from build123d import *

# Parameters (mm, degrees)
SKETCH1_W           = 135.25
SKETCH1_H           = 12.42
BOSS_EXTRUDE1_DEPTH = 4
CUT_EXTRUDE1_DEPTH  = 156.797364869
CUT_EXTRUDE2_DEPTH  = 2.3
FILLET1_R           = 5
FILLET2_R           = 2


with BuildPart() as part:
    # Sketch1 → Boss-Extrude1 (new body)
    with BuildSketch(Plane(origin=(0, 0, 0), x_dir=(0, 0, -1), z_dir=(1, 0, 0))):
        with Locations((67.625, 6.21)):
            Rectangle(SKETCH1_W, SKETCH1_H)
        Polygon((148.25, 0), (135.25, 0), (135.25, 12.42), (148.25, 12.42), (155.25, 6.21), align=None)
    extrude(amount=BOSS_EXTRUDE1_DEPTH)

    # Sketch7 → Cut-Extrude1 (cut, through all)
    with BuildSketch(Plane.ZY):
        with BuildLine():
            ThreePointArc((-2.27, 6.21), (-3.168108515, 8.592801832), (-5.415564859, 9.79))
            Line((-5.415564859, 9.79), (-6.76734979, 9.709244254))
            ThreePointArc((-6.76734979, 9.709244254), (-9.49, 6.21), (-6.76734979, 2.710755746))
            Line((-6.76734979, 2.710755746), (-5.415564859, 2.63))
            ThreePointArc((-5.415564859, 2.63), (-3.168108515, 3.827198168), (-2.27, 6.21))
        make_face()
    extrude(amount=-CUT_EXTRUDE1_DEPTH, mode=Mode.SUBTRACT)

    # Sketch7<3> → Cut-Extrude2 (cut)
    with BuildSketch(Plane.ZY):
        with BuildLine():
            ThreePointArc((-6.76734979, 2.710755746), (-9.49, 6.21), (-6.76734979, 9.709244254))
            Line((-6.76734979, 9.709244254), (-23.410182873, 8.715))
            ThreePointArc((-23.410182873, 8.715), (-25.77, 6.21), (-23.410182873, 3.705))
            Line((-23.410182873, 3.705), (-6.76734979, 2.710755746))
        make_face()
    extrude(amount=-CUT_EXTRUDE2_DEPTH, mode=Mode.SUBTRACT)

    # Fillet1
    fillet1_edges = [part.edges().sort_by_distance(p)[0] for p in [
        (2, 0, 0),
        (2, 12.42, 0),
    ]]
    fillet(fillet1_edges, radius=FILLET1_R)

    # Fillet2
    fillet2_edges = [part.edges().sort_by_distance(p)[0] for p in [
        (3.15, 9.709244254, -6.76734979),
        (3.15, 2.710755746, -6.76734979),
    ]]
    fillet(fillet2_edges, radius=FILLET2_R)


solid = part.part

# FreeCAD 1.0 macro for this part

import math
import FreeCAD as App
import Part
import Sketcher

V = App.Vector
Q = App.Units.Quantity


def edges_at(feature, points):
    """Names of the edges that pass closest to the given points."""
    edges = feature.Shape.Edges
    near = lambda p: min(range(len(edges)), key=lambda i: edges[i].distToShape(Part.Vertex(*p))[0])
    return sorted({f"Edge{near(p) + 1}" for p in points})

doc = App.newDocument("Part")
body = doc.addObject("PartDesign::Body", "Body")

# Sketch on YZ plane
sketch1 = body.newObject("Sketcher::SketchObject", "Sketch")
sketch1.AttachmentSupport = (doc.getObject("YZ_Plane"), [""])
sketch1.MapMode = "FlatFace"
sketch1.addGeometry([
    Part.LineSegment(V(12, 0, 0), V(0, 0, 0)),  # 0
    Part.LineSegment(V(0, 0, 0), V(0, -148, 0)),  # 1
    Part.LineSegment(V(0, -148, 0), V(6, -155, 0)),  # 2
    Part.LineSegment(V(6, -155, 0), V(12, -148, 0)),  # 3
    Part.LineSegment(V(12, -148, 0), V(12, 0, 0)),  # 4
], False)
sketch1.addConstraint([
    Sketcher.Constraint("Coincident", 0, 2, 1, 1),
    Sketcher.Constraint("Coincident", 1, 2, 2, 1),
    Sketcher.Constraint("Coincident", 2, 2, 3, 1),
    Sketcher.Constraint("Coincident", 3, 2, 4, 1),
    Sketcher.Constraint("Coincident", 4, 2, 0, 1),
    Sketcher.Constraint("Horizontal", 0),
    Sketcher.Constraint("Vertical", 1),
    Sketcher.Constraint("Vertical", 4),
    Sketcher.Constraint("Coincident", 0, 2, -1, 1),
    Sketcher.Constraint("Horizontal", 1, 2, 3, 2),
    Sketcher.Constraint("Equal", 2, 3),
    Sketcher.Constraint("DistanceY", 2, 2, 1, 2, Q("7 mm")),
    Sketcher.Constraint("DistanceX", 0, 2, 0, 1, Q("12.42 mm")),
    Sketcher.Constraint("DistanceY", 1, 2, 1, 1, Q("148.25 mm")),
])
pad1 = body.newObject("PartDesign::Pad", "Pad")
pad1.Profile = sketch1
pad1.Length = 4

# Sketch on YZ plane
sketch2 = body.newObject("Sketcher::SketchObject", "Sketch001")
sketch2.AttachmentSupport = (doc.getObject("YZ_Plane"), [""])
sketch2.MapMode = "FlatFace"
sketch2.addGeometry([
    Part.ArcOfCircle(Part.Circle(V(6.2, -5.9, 0), V(0, 0, 1), 3.6), math.radians(7), math.radians(90)),  # 0
    Part.LineSegment(V(9.8, -5.4, 0), V(9.7, -6.8, 0)),  # 1
    Part.ArcOfCircle(Part.Circle(V(6.2, -5.9, 0), V(0, 0, 1), 3.6), math.radians(-166), math.radians(-14)),  # 2
    Part.LineSegment(V(2.7, -6.8, 0), V(2.6, -5.4, 0)),  # 3
    Part.ArcOfCircle(Part.Circle(V(6.2, -5.9, 0), V(0, 0, 1), 3.6), math.radians(90), math.radians(173)),  # 4
], False)
sketch2.addConstraint([
    Sketcher.Constraint("Coincident", 0, 1, 1, 1),
    Sketcher.Constraint("Coincident", 1, 2, 2, 2),
    Sketcher.Constraint("Coincident", 2, 1, 3, 1),
    Sketcher.Constraint("Coincident", 3, 2, 4, 2),
    Sketcher.Constraint("Tangent", 4, 1, 0, 2),
    Sketcher.Constraint("Coincident", 2, 3, 0, 3),
    Sketcher.Constraint("Equal", 0, 2),
    Sketcher.Constraint("Equal", 2, 4),
    Sketcher.Constraint("Horizontal", 1, 2, 2, 1),
    Sketcher.Constraint("Horizontal", 0, 1, 3, 2),
    Sketcher.Constraint("Vertical", 2, 3, 4, 1),
    Sketcher.Constraint("Radius", 0, Q("3.61 mm")),
    Sketcher.Constraint("DistanceX", -1, 1, 0, 3, Q("6.21 mm")),
    Sketcher.Constraint("DistanceY", 0, 3, -1, 1, Q("5.88 mm")),
    Sketcher.Constraint("DistanceX", -1, 1, 0, 1, Q("9.79 mm")),
    Sketcher.Constraint("DistanceY", 1, 2, -1, 1, Q("6.76735 mm")),
])
pocket1 = body.newObject("PartDesign::Pocket", "Pocket")
pocket1.Profile = sketch2
pocket1.Type = "ThroughAll"
pocket1.Reversed = True

# Sketch on YZ plane
sketch3 = body.newObject("Sketcher::SketchObject", "Sketch002")
sketch3.AttachmentSupport = (doc.getObject("YZ_Plane"), [""])
sketch3.MapMode = "FlatFace"
sketch3.addGeometry([
    Part.ArcOfCircle(Part.Circle(V(6.2, -5.9, 0), V(0, 0, 1), 3.6), math.radians(-166), math.radians(-14)),
    Part.LineSegment(V(9.7, -6.8, 0), V(8.7, -23.4, 0)),
    Part.ArcOfCircle(Part.Circle(V(6.2, -23.3, 0), V(0, 0, 1), 2.5), math.radians(-177), math.radians(-3)),
    Part.LineSegment(V(3.7, -23.4, 0), V(2.7, -6.8, 0)),
], False)
sketch3.addConstraint([
    Sketcher.Constraint("Coincident", 0, 2, 1, 1),
    Sketcher.Constraint("Tangent", 1, 2, 2, 2),
    Sketcher.Constraint("Tangent", 2, 1, 3, 1),
    Sketcher.Constraint("Coincident", 3, 2, 0, 1),
    Sketcher.Constraint("Horizontal", 1, 2, 2, 1),
    Sketcher.Constraint("Horizontal", 0, 2, 3, 2),
    Sketcher.Constraint("Radius", 0, Q("3.61 mm")),
    Sketcher.Constraint("DistanceX", -1, 1, 0, 3, Q("6.21 mm")),
    Sketcher.Constraint("DistanceY", 0, 3, -1, 1, Q("5.88 mm")),
    Sketcher.Constraint("DistanceX", 2, 1, 1, 2, Q("5.01 mm")),
    Sketcher.Constraint("DistanceY", 0, 2, -1, 1, Q("6.76735 mm")),
    Sketcher.Constraint("DistanceY", 1, 2, 2, 3, Q("0.149649 mm")),
])
pocket2 = body.newObject("PartDesign::Pocket", "Pocket001")
pocket2.Profile = sketch3
pocket2.Length = 2.3
pocket2.Reversed = True
doc.recompute()

fillet = body.newObject("PartDesign::Fillet", "Fillet")
fillet.Base = (pocket2, edges_at(pocket2, [(2, 0, 0), (2, 12.42, 0)]))
fillet.Radius = 5
doc.recompute()

fillet2 = body.newObject("PartDesign::Fillet", "Fillet001")
fillet2.Base = (fillet, edges_at(fillet, [(3.15, 9.709, -6.767), (3.15, 2.711, -6.767)]))
fillet2.Radius = 2

doc.recompute()
